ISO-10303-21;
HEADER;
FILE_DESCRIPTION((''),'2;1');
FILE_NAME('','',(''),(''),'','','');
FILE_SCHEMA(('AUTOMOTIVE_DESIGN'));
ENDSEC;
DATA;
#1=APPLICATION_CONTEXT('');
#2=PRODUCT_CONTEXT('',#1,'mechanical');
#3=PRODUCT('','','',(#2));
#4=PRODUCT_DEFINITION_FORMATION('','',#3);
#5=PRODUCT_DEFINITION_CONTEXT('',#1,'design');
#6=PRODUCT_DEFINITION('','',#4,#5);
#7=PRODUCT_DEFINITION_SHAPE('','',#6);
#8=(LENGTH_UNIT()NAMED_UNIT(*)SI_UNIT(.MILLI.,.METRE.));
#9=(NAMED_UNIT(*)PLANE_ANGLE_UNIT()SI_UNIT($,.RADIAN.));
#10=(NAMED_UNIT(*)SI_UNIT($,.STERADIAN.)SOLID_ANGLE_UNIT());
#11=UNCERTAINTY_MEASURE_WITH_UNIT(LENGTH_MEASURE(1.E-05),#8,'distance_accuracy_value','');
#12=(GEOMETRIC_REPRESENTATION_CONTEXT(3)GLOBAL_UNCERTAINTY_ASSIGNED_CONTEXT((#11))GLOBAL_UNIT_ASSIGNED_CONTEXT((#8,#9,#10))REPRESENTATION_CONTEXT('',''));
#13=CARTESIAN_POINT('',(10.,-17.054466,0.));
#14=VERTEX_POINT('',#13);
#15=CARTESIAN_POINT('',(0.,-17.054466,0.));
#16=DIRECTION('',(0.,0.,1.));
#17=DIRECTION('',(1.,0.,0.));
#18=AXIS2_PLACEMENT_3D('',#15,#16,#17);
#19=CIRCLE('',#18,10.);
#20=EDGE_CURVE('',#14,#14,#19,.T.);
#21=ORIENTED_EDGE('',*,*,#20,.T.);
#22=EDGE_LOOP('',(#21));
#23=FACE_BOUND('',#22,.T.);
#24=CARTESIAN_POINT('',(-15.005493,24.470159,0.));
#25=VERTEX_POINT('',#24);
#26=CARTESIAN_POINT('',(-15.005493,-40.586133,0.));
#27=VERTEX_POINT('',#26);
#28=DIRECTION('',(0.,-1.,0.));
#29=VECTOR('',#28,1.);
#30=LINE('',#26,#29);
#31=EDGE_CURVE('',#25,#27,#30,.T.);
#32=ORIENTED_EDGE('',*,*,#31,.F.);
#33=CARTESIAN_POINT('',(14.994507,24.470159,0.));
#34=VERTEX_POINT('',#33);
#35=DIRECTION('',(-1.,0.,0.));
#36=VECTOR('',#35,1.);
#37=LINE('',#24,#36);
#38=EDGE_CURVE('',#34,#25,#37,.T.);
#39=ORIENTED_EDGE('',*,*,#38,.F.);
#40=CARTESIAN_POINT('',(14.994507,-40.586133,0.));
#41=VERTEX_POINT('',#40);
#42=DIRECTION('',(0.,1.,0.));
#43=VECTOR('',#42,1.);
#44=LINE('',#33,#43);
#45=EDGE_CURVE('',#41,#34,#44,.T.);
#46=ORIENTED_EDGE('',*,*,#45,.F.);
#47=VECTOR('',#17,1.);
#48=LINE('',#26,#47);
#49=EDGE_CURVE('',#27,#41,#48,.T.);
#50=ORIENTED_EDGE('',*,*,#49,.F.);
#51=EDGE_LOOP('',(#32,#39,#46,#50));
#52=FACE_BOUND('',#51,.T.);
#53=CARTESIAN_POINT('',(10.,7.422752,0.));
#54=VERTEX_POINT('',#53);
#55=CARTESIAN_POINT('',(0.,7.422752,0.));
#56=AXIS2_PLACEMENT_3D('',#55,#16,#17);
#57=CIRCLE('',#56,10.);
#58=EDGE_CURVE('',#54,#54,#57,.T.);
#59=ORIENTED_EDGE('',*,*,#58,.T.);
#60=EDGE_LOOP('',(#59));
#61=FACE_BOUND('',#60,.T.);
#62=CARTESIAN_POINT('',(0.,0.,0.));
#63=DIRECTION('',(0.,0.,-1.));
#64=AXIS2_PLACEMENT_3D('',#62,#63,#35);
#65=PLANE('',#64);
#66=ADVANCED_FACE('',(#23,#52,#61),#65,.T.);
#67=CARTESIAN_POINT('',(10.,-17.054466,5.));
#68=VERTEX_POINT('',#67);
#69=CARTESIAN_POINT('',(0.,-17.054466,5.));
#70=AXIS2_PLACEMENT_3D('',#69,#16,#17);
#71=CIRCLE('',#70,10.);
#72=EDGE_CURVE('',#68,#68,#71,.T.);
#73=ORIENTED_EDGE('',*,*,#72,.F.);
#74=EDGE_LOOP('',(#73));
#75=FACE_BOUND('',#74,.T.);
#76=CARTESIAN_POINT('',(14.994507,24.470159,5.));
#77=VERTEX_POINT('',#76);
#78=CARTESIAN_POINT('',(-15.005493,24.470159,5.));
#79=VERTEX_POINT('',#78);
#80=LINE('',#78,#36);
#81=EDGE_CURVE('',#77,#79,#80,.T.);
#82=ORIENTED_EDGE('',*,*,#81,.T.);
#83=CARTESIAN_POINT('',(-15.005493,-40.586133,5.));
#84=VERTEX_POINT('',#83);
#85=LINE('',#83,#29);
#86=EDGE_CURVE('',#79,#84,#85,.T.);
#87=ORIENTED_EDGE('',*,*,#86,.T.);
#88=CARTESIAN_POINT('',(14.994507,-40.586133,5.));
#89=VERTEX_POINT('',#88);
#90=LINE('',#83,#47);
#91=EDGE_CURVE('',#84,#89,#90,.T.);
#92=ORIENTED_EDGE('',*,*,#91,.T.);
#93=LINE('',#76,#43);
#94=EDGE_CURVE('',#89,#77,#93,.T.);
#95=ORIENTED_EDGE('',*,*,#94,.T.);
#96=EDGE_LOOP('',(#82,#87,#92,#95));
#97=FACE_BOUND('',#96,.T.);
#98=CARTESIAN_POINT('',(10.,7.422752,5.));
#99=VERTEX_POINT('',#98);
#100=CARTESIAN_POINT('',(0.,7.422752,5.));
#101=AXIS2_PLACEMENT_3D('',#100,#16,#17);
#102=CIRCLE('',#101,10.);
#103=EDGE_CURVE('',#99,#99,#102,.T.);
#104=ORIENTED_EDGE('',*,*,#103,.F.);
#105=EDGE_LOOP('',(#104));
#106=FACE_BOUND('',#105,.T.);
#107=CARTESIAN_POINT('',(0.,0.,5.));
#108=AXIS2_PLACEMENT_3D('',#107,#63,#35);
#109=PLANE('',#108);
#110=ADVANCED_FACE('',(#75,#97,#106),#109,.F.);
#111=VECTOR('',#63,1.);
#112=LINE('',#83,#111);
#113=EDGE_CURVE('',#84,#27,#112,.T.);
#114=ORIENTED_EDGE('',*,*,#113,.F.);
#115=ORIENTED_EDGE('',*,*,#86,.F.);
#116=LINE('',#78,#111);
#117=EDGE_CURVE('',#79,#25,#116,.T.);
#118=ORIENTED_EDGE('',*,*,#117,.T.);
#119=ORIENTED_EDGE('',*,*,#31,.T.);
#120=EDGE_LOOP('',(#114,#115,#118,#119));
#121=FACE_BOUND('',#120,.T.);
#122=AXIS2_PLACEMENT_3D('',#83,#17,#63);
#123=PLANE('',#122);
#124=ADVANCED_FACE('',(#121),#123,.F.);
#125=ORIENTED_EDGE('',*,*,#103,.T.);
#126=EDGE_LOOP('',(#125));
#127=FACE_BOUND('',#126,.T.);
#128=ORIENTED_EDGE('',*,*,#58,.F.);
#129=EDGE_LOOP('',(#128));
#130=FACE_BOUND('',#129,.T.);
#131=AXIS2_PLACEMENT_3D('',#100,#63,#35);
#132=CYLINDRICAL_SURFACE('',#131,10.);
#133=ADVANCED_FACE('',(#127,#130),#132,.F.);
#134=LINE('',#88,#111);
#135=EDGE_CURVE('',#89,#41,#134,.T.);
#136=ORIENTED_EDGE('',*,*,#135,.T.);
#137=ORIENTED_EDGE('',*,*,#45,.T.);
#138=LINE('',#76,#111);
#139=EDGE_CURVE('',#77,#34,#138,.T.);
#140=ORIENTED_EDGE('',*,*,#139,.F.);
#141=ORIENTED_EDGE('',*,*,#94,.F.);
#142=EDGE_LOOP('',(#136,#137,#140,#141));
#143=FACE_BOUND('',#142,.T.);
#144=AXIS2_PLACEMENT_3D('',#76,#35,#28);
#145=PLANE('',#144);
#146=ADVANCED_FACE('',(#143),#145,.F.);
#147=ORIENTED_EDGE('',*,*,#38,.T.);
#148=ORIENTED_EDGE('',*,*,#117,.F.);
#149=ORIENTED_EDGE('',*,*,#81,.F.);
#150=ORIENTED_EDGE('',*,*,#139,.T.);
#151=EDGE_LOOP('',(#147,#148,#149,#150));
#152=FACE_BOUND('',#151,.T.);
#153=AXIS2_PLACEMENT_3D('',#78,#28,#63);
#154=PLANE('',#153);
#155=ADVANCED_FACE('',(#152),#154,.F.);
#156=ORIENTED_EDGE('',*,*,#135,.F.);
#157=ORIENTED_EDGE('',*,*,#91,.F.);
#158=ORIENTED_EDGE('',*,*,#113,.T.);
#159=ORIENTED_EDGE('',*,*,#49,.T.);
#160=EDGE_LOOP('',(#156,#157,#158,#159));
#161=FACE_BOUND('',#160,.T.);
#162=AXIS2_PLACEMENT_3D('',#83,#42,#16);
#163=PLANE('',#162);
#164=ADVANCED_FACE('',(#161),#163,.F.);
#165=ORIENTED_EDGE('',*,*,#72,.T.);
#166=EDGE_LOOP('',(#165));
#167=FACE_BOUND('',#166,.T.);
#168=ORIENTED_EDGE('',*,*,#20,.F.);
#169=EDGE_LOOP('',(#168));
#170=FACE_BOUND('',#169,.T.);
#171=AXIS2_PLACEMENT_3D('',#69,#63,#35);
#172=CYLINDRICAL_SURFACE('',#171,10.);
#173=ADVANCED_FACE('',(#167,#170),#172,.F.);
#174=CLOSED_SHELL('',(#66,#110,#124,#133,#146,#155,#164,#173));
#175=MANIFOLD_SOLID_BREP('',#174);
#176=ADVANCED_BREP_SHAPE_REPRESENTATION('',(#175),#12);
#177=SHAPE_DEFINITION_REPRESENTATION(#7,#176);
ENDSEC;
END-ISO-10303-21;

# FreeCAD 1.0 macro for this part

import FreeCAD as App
import Part
import Sketcher
from FreeCAD import Vector


def add_polygon(sketch, points):
    """Adds a closed chain of lines whose ends are joined by coincident constraints."""
    first, n = sketch.GeometryCount, len(points)
    for a, b in zip(points, points[1:] + points[:1]):
        sketch.addGeometry(Part.LineSegment(App.Vector(*a, 0), App.Vector(*b, 0)), False)
    for i in range(n):
        sketch.addConstraint(Sketcher.Constraint("Coincident", first + i, 2, first + (i + 1) % n, 1))

doc = App.newDocument("Part")
body = doc.addObject("PartDesign::Body", "Body")

# Sketch on XY plane
sketch1 = body.newObject("Sketcher::SketchObject", "Sketch")
sketch1.AttachmentSupport = (doc.getObject("XY_Plane"), [""])
sketch1.MapMode = "FlatFace"
add_polygon(sketch1, [(-15, 24), (-15, -41), (15, -41), (15, 24)])  # lines 0-3
sketch1.addGeometry(Part.Circle(Vector(0, -17, 0), Vector(0, 0, 1), 10), False)  # 4
sketch1.addGeometry(Part.Circle(Vector(0, 7, 0), Vector(0, 0, 1), 10), False)  # 5
sketch1.addConstraint(Sketcher.Constraint("Vertical", 0))
sketch1.addConstraint(Sketcher.Constraint("Horizontal", 1))
sketch1.addConstraint(Sketcher.Constraint("Vertical", 2))
sketch1.addConstraint(Sketcher.Constraint("Horizontal", 3))
sketch1.addConstraint(Sketcher.Constraint("Equal", 4, 5))
sketch1.addConstraint(Sketcher.Constraint("PointOnObject", 4, 3, -2))
sketch1.addConstraint(Sketcher.Constraint("PointOnObject", 5, 3, -2))
sketch1.addConstraint(Sketcher.Constraint("Diameter", 4, 20.0))
sketch1.addConstraint(Sketcher.Constraint("DistanceX", 1, 1, 1, 2, 30.0))
sketch1.addConstraint(Sketcher.Constraint("DistanceY", 0, 2, 0, 1, 65.056292))
sketch1.addConstraint(Sketcher.Constraint("DistanceY", -1, 1, 5, 3, 7.422752))
sketch1.addConstraint(Sketcher.Constraint("DistanceY", -1, 1, 2, 2, 24.470159))
sketch1.addConstraint(Sketcher.Constraint("DistanceY", 4, 3, -1, 1, 17.054466))
sketch1.addConstraint(Sketcher.Constraint("DistanceX", 0, 2, -1, 1, 15.005493))
pad1 = body.newObject("PartDesign::Pad", "Pad")
pad1.Profile = sketch1
pad1.Length = 5

doc.recompute()
